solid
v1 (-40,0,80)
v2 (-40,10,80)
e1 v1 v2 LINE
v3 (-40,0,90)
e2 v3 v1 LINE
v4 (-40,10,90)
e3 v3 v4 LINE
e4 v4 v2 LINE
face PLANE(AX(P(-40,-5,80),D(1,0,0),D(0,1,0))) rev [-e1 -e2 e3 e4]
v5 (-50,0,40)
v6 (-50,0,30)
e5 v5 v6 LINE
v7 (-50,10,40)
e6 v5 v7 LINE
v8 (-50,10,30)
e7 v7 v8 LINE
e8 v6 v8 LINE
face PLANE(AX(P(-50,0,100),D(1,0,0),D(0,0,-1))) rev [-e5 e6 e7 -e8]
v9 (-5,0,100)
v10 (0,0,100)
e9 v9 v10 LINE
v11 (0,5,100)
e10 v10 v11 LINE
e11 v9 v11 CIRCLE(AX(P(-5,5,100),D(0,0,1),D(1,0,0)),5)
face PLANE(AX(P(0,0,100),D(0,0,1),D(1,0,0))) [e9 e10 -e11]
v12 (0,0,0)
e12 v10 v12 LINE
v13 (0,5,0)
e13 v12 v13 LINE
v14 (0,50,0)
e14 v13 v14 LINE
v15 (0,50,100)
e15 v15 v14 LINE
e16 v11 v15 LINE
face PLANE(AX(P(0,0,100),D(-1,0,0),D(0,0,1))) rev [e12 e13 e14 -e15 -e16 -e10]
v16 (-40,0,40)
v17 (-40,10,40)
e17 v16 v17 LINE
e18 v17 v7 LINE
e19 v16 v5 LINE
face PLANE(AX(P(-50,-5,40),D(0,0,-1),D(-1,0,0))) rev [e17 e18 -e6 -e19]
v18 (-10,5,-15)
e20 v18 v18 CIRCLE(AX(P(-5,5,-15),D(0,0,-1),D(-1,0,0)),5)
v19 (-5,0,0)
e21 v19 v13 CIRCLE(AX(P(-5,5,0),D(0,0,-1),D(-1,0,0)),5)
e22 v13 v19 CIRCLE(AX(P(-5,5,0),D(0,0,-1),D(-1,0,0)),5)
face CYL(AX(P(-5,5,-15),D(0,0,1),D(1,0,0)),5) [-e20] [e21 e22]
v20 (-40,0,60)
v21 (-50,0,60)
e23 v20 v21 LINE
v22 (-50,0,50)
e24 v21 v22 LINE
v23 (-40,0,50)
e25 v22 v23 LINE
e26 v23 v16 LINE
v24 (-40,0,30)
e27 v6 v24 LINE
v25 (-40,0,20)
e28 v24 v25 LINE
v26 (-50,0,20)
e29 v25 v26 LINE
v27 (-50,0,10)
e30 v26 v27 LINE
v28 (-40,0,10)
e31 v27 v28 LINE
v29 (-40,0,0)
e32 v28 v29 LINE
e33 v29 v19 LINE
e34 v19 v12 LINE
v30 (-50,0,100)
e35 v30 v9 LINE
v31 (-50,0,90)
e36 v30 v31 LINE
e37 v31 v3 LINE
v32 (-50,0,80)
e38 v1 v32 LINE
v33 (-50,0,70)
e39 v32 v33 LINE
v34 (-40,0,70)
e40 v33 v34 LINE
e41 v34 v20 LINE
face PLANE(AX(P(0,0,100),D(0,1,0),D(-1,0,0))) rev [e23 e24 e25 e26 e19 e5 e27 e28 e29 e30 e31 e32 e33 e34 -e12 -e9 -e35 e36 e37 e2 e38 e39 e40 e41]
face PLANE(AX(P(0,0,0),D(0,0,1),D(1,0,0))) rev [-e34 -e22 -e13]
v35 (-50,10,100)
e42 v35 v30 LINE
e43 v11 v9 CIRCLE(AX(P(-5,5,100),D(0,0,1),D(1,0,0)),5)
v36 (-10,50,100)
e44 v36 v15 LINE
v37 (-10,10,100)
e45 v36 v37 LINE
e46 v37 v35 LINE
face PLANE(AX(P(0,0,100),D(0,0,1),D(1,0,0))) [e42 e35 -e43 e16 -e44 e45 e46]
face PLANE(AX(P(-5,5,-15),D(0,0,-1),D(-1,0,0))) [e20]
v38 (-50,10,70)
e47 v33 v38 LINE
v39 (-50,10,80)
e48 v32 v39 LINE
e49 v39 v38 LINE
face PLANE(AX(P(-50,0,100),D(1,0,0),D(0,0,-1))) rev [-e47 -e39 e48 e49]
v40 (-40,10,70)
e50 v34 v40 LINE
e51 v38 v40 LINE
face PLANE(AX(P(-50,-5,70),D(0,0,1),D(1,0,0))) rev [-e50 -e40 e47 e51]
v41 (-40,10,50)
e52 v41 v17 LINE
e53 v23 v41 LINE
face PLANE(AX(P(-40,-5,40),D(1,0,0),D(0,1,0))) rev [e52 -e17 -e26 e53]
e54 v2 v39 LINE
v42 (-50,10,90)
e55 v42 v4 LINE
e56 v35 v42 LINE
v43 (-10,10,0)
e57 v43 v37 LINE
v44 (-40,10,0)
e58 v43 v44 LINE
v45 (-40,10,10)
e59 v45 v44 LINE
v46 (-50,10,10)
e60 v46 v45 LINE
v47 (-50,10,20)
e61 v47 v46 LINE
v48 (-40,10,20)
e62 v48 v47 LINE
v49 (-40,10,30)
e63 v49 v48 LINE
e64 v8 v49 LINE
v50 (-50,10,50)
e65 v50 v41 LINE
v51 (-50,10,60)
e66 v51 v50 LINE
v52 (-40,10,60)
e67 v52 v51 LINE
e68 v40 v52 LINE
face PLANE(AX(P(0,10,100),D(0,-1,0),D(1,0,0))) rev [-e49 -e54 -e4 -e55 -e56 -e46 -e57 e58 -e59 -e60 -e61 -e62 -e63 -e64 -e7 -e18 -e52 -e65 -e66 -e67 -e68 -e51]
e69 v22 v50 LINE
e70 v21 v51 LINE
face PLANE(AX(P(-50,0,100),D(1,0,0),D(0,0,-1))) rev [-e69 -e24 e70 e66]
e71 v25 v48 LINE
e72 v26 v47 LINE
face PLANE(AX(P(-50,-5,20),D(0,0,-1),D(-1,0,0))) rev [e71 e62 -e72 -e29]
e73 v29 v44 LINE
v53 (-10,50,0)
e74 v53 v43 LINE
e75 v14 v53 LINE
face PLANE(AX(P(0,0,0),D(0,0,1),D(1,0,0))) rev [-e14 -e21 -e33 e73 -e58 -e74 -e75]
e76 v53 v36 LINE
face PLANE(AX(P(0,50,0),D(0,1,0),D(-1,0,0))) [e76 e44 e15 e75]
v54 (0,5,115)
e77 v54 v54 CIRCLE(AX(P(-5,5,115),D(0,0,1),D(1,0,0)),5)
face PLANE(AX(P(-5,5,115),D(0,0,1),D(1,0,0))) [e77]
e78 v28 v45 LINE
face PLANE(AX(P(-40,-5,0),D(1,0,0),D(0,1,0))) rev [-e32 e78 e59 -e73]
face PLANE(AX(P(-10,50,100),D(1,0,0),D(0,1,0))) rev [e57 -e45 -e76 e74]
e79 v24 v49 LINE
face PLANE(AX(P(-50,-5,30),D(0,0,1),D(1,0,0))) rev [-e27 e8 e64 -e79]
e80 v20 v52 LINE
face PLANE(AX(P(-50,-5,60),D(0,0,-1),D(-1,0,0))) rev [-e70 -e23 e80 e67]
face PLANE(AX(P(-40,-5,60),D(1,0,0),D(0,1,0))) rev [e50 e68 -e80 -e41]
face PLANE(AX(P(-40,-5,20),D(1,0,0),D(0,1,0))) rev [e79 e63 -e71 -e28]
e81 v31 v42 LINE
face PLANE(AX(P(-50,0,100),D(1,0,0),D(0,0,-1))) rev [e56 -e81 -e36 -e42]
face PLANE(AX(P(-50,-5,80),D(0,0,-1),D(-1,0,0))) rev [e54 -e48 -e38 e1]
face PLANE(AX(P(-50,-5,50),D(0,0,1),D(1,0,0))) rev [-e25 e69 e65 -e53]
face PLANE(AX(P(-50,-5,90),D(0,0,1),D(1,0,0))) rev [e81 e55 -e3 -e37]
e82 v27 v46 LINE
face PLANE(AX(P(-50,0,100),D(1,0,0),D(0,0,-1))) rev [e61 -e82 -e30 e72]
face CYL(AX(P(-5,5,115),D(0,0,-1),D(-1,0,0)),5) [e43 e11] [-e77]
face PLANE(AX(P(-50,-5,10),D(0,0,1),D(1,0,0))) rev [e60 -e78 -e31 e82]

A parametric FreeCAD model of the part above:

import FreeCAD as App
import Part
import Sketcher

V = App.Vector


def add_polygon(sketch, points):
    """Adds a closed chain of lines whose ends are joined by coincident constraints."""
    first, n = sketch.GeometryCount, len(points)
    for a, b in zip(points, points[1:] + points[:1]):
        sketch.addGeometry(Part.LineSegment(App.Vector(*a, 0), App.Vector(*b, 0)), False)
    for i in range(n):
        sketch.addConstraint(Sketcher.Constraint("Coincident", first + i, 2, first + (i + 1) % n, 1))

doc = App.newDocument("Part")
body = doc.addObject("PartDesign::Body", "Body")

# Sketch on XY plane
sketch1 = doc.addObject("Sketcher::SketchObject", "Sketch")
body.addObject(sketch1)
sketch1.AttachmentSupport = (doc.XY_Plane, [""])
sketch1.MapMode = "FlatFace"
add_polygon(sketch1, [(-50, 10), (-50, 0), (0, 0), (0, 10)])  # lines 0-3
sketch1.addConstraint([
    Sketcher.Constraint("Vertical", 0),
    Sketcher.Constraint("Horizontal", 1),
    Sketcher.Constraint("Vertical", 2),
    Sketcher.Constraint("Horizontal", 3),
    Sketcher.Constraint("Coincident", 1, 2, -1, 1),
    Sketcher.Constraint("DistanceX", 1, 1, 1, 2, 50.0),
    Sketcher.Constraint("DistanceY", 0, 2, 0, 1, 10.0),
])
pad1 = doc.addObject("PartDesign::Pad", "Pad")
body.addObject(pad1)
pad1.Profile = sketch1
pad1.Length = 100

# Sketch on XY plane
sketch2 = doc.addObject("Sketcher::SketchObject", "Sketch001")
body.addObject(sketch2)
sketch2.AttachmentSupport = (doc.XY_Plane, [""])
sketch2.MapMode = "FlatFace"
sketch2.AttachmentOffset = App.Placement(V(0, 0, 100), App.Rotation())
sketch2.addGeometry(Part.Circle(V(-5, 5, 0), V(0, 0, 1), 5), False)
sketch2.addConstraint([
    Sketcher.Constraint("Diameter", 0, 10.0),
    Sketcher.Constraint("DistanceX", 0, 3, -1, 1, 5.0),
    Sketcher.Constraint("DistanceY", -1, 1, 0, 3, 5.0),
])
pad2 = doc.addObject("PartDesign::Pad", "Pad001")
body.addObject(pad2)
pad2.Profile = sketch2
pad2.Length = 15

# Sketch on XY plane
sketch3 = doc.addObject("Sketcher::SketchObject", "Sketch002")
body.addObject(sketch3)
sketch3.AttachmentSupport = (doc.XY_Plane, [""])
sketch3.MapMode = "FlatFace"
sketch3.addGeometry(Part.Circle(V(-5, 5, 0), V(0, 0, 1), 5), False)
sketch3.addConstraint([
    Sketcher.Constraint("Diameter", 0, 10.0),
    Sketcher.Constraint("DistanceX", 0, 3, -1, 1, 5.0),
    Sketcher.Constraint("DistanceY", -1, 1, 0, 3, 5.0),
])
pad3 = doc.addObject("PartDesign::Pad", "Pad002")
body.addObject(pad3)
pad3.Profile = sketch3
pad3.Length = 15
pad3.Reversed = True

# Sketch on XZ plane
sketch4 = doc.addObject("Sketcher::SketchObject", "Sketch003")
body.addObject(sketch4)
sketch4.AttachmentSupport = (doc.XZ_Plane, [""])
sketch4.MapMode = "FlatFace"
sketch4.AttachmentOffset = App.Placement(V(0, 0, -10), App.Rotation())
add_polygon(sketch4, [(-50, 0), (-50, 10), (-40, 10), (-40, 0)])  # lines 0-3
sketch4.addConstraint([
    Sketcher.Constraint("Vertical", 0),
    Sketcher.Constraint("Horizontal", 1),
    Sketcher.Constraint("Vertical", 2),
    Sketcher.Constraint("Horizontal", 3),
    Sketcher.Constraint("PointOnObject", 2, 2, -1),
    Sketcher.Constraint("Equal", 3, 0),
    Sketcher.Constraint("DistanceX", 1, 1, 1, 2, 10.0),
    Sketcher.Constraint("DistanceX", 0, 2, -1, 1, 50.0),
])
pocket1 = doc.addObject("PartDesign::Pocket", "Pocket")
body.addObject(pocket1)
pocket1.Profile = sketch4
pocket1.Length = 15
pocket1.Reversed = True
doc.recompute()

linearpattern = doc.addObject("PartDesign::LinearPattern", "LinearPattern")
body.addObject(linearpattern)
linearpattern.Originals = [pocket1]
linearpattern.Direction = (doc.Z_Axis, [""])
linearpattern.Mode = "offset"
linearpattern.Offset = 20
linearpattern.Occurrences = 5
body.Tip = linearpattern

# Sketch on XZ plane
sketch5 = doc.addObject("Sketcher::SketchObject", "Sketch004")
body.addObject(sketch5)
sketch5.AttachmentSupport = (doc.XZ_Plane, [""])
sketch5.MapMode = "FlatFace"
sketch5.AttachmentOffset = App.Placement(V(0, 0, -10), App.Rotation())
add_polygon(sketch5, [(-10, 0), (-10, 100), (0, 100), (0, 0)])  # lines 0-3
sketch5.addConstraint([
    Sketcher.Constraint("Vertical", 0),
    Sketcher.Constraint("Horizontal", 1),
    Sketcher.Constraint("Vertical", 2),
    Sketcher.Constraint("Horizontal", 3),
    Sketcher.Constraint("Coincident", 2, 2, -1, 1),
    Sketcher.Constraint("DistanceX", 1, 1, 1, 2, 10.0),
    Sketcher.Constraint("DistanceY", 0, 1, 0, 2, 100.0),
])
pad4 = doc.addObject("PartDesign::Pad", "Pad003")
body.addObject(pad4)
pad4.Profile = sketch5
pad4.Length = 40
pad4.Reversed = True

doc.recompute()
